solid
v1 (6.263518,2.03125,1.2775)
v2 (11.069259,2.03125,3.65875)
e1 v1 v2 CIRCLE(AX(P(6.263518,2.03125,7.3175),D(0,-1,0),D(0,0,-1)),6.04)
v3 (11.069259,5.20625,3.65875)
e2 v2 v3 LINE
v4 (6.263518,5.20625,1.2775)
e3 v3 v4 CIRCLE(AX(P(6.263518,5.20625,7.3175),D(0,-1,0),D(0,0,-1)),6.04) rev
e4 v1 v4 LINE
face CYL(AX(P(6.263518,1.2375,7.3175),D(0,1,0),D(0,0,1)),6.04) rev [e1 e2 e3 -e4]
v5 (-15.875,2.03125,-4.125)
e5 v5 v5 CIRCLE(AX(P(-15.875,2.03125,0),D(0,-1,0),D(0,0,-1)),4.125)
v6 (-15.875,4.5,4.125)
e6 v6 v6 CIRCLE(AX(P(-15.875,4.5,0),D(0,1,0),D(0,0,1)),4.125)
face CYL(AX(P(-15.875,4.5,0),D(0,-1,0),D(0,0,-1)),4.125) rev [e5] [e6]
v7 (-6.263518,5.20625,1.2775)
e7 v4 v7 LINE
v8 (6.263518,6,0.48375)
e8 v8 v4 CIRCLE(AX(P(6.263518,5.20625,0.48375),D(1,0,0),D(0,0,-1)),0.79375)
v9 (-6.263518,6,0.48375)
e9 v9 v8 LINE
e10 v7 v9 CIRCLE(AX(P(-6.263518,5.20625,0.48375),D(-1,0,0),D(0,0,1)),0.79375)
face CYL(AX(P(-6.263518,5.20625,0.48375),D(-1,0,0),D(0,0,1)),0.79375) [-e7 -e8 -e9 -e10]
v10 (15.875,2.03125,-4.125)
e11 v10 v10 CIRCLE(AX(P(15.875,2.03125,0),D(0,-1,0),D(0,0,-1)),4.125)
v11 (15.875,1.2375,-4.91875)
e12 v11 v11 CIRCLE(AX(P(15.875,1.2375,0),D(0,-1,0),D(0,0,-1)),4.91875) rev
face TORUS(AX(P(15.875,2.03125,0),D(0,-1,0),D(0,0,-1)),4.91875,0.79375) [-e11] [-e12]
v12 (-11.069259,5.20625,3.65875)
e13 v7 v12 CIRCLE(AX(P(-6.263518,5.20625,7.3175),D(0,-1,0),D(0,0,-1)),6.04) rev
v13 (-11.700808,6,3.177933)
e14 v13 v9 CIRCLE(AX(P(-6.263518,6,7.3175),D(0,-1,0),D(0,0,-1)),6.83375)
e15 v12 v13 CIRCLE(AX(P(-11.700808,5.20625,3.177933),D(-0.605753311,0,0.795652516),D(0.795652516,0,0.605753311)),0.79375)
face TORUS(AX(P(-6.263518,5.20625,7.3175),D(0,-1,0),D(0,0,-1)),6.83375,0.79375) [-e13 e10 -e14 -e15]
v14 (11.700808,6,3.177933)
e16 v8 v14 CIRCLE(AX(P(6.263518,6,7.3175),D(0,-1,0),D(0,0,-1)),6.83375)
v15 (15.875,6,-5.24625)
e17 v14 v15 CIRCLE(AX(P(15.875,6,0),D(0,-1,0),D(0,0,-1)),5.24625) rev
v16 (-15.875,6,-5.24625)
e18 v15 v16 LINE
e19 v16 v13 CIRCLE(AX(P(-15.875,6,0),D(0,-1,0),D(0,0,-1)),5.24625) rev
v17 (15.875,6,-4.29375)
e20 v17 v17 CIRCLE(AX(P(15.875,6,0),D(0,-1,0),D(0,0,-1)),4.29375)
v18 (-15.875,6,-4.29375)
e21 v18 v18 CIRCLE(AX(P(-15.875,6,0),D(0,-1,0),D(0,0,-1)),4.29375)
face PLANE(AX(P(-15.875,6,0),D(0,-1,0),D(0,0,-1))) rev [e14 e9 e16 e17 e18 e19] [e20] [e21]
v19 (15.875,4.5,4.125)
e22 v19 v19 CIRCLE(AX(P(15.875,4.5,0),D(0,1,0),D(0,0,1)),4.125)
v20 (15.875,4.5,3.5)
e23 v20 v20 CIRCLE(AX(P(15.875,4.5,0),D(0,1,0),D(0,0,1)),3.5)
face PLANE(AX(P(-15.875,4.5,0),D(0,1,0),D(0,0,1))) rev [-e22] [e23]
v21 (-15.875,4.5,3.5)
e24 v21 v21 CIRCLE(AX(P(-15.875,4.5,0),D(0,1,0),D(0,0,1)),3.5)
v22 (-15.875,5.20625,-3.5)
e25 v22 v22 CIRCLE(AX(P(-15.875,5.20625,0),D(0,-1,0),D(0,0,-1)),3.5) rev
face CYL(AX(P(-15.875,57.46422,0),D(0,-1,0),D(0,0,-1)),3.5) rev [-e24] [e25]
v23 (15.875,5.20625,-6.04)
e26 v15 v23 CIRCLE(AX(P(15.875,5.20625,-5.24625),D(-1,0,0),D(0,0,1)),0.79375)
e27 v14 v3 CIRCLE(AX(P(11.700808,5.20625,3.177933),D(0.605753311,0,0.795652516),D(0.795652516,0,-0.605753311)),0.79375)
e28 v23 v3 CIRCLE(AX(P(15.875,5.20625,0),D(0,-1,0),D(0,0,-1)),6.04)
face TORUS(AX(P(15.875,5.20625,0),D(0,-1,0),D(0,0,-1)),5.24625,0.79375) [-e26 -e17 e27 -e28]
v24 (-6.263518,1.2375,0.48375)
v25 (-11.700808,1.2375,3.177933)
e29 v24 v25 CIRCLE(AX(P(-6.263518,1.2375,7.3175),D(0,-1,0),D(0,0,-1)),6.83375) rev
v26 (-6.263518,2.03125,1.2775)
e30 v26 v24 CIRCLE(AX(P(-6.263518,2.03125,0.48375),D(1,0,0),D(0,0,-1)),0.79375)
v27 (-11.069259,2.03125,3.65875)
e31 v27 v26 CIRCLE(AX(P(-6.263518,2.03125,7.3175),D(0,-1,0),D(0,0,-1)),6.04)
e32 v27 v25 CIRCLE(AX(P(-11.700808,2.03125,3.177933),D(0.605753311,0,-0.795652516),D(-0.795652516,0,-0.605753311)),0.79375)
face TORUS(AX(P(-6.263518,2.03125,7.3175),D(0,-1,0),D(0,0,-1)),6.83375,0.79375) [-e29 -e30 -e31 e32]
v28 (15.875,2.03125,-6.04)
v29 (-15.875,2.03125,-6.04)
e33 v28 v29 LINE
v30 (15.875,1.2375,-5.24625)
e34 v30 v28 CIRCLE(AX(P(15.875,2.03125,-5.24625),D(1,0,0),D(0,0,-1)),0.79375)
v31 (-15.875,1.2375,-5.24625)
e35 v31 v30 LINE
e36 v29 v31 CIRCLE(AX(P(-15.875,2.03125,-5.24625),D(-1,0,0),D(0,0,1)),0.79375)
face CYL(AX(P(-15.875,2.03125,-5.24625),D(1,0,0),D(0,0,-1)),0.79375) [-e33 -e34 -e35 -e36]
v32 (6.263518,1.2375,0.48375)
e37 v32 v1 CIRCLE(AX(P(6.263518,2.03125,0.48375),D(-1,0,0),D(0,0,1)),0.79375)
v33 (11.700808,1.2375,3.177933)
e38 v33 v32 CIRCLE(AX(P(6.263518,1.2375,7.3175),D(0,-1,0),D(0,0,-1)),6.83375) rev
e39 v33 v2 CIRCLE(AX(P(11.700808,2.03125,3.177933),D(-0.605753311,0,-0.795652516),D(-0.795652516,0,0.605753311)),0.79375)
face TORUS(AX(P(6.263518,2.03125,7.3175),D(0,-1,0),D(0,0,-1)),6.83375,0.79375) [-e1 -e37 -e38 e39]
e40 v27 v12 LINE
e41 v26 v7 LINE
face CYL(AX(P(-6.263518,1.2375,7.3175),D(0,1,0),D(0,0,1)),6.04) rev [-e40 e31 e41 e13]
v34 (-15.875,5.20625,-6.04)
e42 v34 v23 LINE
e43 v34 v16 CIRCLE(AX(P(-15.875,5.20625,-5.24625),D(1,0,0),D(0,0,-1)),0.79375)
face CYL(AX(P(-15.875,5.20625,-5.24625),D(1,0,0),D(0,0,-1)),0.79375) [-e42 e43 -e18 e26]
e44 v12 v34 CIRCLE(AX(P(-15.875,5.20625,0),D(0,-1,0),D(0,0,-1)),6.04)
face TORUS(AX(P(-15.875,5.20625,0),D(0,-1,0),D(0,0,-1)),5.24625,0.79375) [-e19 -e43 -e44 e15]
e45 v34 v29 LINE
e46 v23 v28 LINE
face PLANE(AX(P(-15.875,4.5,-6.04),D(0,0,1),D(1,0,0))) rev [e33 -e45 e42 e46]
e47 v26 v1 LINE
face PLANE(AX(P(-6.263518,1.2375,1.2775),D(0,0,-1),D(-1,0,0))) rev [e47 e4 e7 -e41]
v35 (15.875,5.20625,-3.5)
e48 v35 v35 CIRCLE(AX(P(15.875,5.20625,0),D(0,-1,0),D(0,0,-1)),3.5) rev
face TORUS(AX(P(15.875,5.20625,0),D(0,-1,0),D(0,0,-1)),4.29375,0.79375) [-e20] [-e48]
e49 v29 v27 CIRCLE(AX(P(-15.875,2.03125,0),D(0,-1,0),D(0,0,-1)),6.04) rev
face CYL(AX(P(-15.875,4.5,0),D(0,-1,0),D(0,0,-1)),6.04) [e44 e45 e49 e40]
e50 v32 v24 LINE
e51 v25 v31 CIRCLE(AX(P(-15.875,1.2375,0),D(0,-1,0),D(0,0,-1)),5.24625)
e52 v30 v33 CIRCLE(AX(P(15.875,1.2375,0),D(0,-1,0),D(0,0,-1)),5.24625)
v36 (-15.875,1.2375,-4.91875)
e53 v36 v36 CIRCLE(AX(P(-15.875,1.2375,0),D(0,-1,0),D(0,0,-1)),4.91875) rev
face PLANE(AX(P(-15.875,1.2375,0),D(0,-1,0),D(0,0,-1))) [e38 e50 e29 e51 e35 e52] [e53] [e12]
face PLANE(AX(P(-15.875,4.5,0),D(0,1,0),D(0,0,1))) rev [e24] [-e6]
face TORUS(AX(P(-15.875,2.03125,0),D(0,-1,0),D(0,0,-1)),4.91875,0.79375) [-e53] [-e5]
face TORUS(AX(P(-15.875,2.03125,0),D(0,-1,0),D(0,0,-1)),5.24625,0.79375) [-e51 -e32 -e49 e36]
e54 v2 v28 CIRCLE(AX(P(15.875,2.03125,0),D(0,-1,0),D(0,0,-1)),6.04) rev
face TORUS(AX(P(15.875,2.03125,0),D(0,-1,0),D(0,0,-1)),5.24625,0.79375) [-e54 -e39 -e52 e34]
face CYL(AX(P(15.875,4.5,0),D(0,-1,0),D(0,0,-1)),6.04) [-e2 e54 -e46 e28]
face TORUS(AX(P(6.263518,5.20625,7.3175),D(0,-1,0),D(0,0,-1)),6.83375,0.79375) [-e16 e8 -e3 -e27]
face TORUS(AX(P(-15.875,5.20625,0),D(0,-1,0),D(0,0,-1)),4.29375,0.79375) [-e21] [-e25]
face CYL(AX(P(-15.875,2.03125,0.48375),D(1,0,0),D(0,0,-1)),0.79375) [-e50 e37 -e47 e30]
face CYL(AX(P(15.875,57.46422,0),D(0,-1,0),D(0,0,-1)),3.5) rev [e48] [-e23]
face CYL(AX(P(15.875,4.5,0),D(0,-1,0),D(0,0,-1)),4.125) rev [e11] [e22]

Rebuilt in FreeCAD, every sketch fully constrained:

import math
import FreeCAD as App
import Part
import Sketcher

V = App.Vector
Q = App.Units.Quantity


def edges_at(feature, points):
    """Names of the edges that pass closest to the given points."""
    edges = feature.Shape.Edges
    near = lambda p: min(range(len(edges)), key=lambda i: edges[i].distToShape(Part.Vertex(*p))[0])
    return sorted({f"Edge{near(p) + 1}" for p in points})

doc = App.newDocument("Part")
body = doc.addObject("PartDesign::Body", "Body")

sketch1 = body.newObject("Sketcher::SketchObject", "Sketch")
sketch1.AttachmentSupport = (doc.getObject("XZ_Plane"), [""])
sketch1.MapMode = "FlatFace"
sketch1.addGeometry([
    Part.LineSegment(V(15.9, -6, 0), V(-15.9, -6, 0)),
    Part.ArcOfCircle(Part.Circle(V(-15.9, 0, 0), V(0, 0, 1), 6), math.radians(90), math.radians(270)),
    Part.LineSegment(V(-15.9, 6, 0), V(15.9, 6, 0)),
    Part.ArcOfCircle(Part.Circle(V(15.9, 0, 0), V(0, 0, 1), 6), math.radians(-90), math.radians(90)),
    Part.Circle(V(15.9, 0, 0), V(0, 0, 1), 4.1),
    Part.Circle(V(-15.9, 0, 0), V(0, 0, 1), 4.1),
], False)
sketch1.addConstraint([
    Sketcher.Constraint("Tangent", 0, 2, 1, 2),
    Sketcher.Constraint("Tangent", 1, 1, 2, 1),
    Sketcher.Constraint("Tangent", 2, 2, 3, 2),
    Sketcher.Constraint("Tangent", 3, 1, 0, 1),
    Sketcher.Constraint("Horizontal", 0),
    Sketcher.Constraint("Horizontal", 2),
    Sketcher.Constraint("Coincident", 4, 3, 3, 3),
    Sketcher.Constraint("Coincident", 5, 3, 1, 3),
    Sketcher.Constraint("Equal", 4, 5),
    Sketcher.Constraint("Symmetric", 1, 3, 3, 3, -1, 1),
    Sketcher.Constraint("Diameter", 4, Q("8.25 mm")),
    Sketcher.Constraint("Radius", 1, Q("6.04 mm")),
    Sketcher.Constraint("DistanceX", 0, 2, 0, 1, Q("31.75 mm")),
])
pad1 = body.newObject("PartDesign::Pad", "Pad")
pad1.Profile = sketch1
pad1.Length = 4.5
pad1.Reversed = True

sketch2 = body.newObject("Sketcher::SketchObject", "Sketch001")
sketch2.AttachmentSupport = (doc.getObject("XZ_Plane"), [""])
sketch2.MapMode = "FlatFace"
sketch2.AttachmentOffset = App.Placement(V(0, 0, -4.5), App.Rotation())
sketch2.addGeometry([
    Part.LineSegment(V(-15.9, 6, 0), V(15.9, 6, 0)),
    Part.ArcOfCircle(Part.Circle(V(15.9, 0, 0), V(0, 0, 1), 6), math.radians(-90), math.radians(90)),
    Part.LineSegment(V(15.9, -6, 0), V(-15.9, -6, 0)),
    Part.ArcOfCircle(Part.Circle(V(-15.9, 0, 0), V(0, 0, 1), 6), math.radians(90), math.radians(270)),
    Part.Circle(V(-15.9, 0, 0), V(0, 0, 1), 3.5),
    Part.Circle(V(15.9, 0, 0), V(0, 0, 1), 3.5),
], False)
sketch2.addConstraint([
    Sketcher.Constraint("Tangent", 0, 2, 1, 2),
    Sketcher.Constraint("Tangent", 1, 1, 2, 1),
    Sketcher.Constraint("Tangent", 2, 2, 3, 2),
    Sketcher.Constraint("Tangent", 3, 1, 0, 1),
    Sketcher.Constraint("Horizontal", 0),
    Sketcher.Constraint("Horizontal", 2),
    Sketcher.Constraint("Coincident", 4, 3, 3, 3),
    Sketcher.Constraint("Coincident", 5, 3, 1, 3),
    Sketcher.Constraint("Equal", 4, 5),
    Sketcher.Constraint("Symmetric", 1, 3, 3, 3, -1, 1),
    Sketcher.Constraint("Diameter", 4, Q("7 mm")),
    Sketcher.Constraint("Radius", 1, Q("6.04 mm")),
    Sketcher.Constraint("DistanceX", 0, 1, 0, 2, Q("31.75 mm")),
])
pad2 = body.newObject("PartDesign::Pad", "Pad001")
pad2.Profile = sketch2
pad2.Length = 1.5
pad2.Reversed = True

sketch3 = body.newObject("Sketcher::SketchObject", "Sketch002")
sketch3.AttachmentSupport = (doc.getObject("XZ_Plane"), [""])
sketch3.MapMode = "FlatFace"
sketch3.addGeometry([
    Part.LineSegment(V(16, 6, 0), V(-16, 6, 0)),
    Part.ArcOfCircle(Part.Circle(V(-16, 0, 0), V(0, 0, 1), 6), math.radians(90), math.radians(270)),
    Part.LineSegment(V(-16, -6, 0), V(16, -6, 0)),
    Part.ArcOfCircle(Part.Circle(V(16, 0, 0), V(0, 0, 1), 6), math.radians(-90), math.radians(90)),
], False)
sketch3.addConstraint([
    Sketcher.Constraint("Tangent", 0, 2, 1, 1),
    Sketcher.Constraint("Tangent", 1, 2, 2, 1),
    Sketcher.Constraint("Tangent", 2, 2, 3, 1),
    Sketcher.Constraint("Tangent", 3, 2, 0, 1),
    Sketcher.Constraint("Horizontal", 0),
    Sketcher.Constraint("Horizontal", 2),
    Sketcher.Constraint("Symmetric", 1, 3, 3, 3, -1, 1),
    Sketcher.Constraint("Radius", 1, Q("6.04 mm")),
    Sketcher.Constraint("DistanceX", 0, 2, 0, 1, Q("31.75 mm")),
])
pocket1 = body.newObject("PartDesign::Pocket", "Pocket")
pocket1.Profile = sketch3
pocket1.Length = 1.2375

sketch4 = body.newObject("Sketcher::SketchObject", "Sketch003")
sketch4.AttachmentSupport = (doc.getObject("XZ_Plane"), [""])
sketch4.MapMode = "FlatFace"
sketch4.AttachmentOffset = App.Placement(V(0, 0, -6), App.Rotation())
sketch4.addGeometry([
    Part.LineSegment(V(6, 1, 0), V(-6, 1, 0)),
    Part.ArcOfCircle(Part.Circle(V(-6, 7, 0), V(0, 0, 1), 6), math.radians(-143), math.radians(-90)),
    Part.ArcOfCircle(Part.Circle(V(-16, 0, 0), V(0, 0, 1), 6), math.radians(37), math.radians(90)),
    Part.LineSegment(V(-16, 6, 0), V(16, 6, 0)),
    Part.ArcOfCircle(Part.Circle(V(16, 0, 0), V(0, 0, 1), 6), math.radians(90), math.radians(143)),
    Part.ArcOfCircle(Part.Circle(V(6, 7, 0), V(0, 0, 1), 6), math.radians(-90), math.radians(-37)),
], False)
sketch4.addConstraint([
    Sketcher.Constraint("Tangent", 0, 2, 1, 2),
    Sketcher.Constraint("Tangent", 1, 1, 2, 1),
    Sketcher.Constraint("Tangent", 2, 2, 3, 1),
    Sketcher.Constraint("Tangent", 3, 2, 4, 1),
    Sketcher.Constraint("Tangent", 4, 2, 5, 2),
    Sketcher.Constraint("Tangent", 5, 1, 0, 1),
    Sketcher.Constraint("Horizontal", 0),
    Sketcher.Constraint("Horizontal", 3),
    Sketcher.Constraint("Equal", 1, 2),
    Sketcher.Constraint("Equal", 2, 4),
    Sketcher.Constraint("Equal", 4, 5),
    Sketcher.Constraint("Symmetric", 2, 3, 4, 3, -1, 1),
    Sketcher.Constraint("Radius", 1, Q("6.04 mm")),
    Sketcher.Constraint("DistanceX", 3, 1, 3, 2, Q("31.75 mm")),
    Sketcher.Constraint("DistanceY", -1, 1, 1, 3, Q("7.3175 mm")),
])
pocket2 = body.newObject("PartDesign::Pocket", "Pocket001")
pocket2.Profile = sketch4
pocket2.Type = "ThroughAll"
pocket2.Reversed = True
doc.recompute()

fillet = body.newObject("PartDesign::Fillet", "Fillet")
fillet.Base = (pocket2, edges_at(pocket2, [
    (-15.875, 1.238, -4.125),
    (15.875, 1.238, -4.125),
    (21.915, 1.238, 0),
    (0, 1.238, -6.04),
    (-21.915, 1.238, 0),
    (-8.945, 1.238, 1.905),
    (0, 1.238, 1.278),
    (8.945, 1.238, 1.905),
]))
fillet.Radius = 0.79375
doc.recompute()

fillet2 = body.newObject("PartDesign::Fillet", "Fillet001")
fillet2.Base = (fillet, edges_at(fillet, [
    (-21.915, 6, 0),
    (21.915, 6, 0),
    (0, 6, -6.04),
    (15.875, 6, 3.5),
    (-15.875, 6, 3.5),
    (8.945, 6, 1.905),
    (0, 6, 1.278),
    (-8.945, 6, 1.905),
]))
fillet2.Radius = 0.79375

doc.recompute()
